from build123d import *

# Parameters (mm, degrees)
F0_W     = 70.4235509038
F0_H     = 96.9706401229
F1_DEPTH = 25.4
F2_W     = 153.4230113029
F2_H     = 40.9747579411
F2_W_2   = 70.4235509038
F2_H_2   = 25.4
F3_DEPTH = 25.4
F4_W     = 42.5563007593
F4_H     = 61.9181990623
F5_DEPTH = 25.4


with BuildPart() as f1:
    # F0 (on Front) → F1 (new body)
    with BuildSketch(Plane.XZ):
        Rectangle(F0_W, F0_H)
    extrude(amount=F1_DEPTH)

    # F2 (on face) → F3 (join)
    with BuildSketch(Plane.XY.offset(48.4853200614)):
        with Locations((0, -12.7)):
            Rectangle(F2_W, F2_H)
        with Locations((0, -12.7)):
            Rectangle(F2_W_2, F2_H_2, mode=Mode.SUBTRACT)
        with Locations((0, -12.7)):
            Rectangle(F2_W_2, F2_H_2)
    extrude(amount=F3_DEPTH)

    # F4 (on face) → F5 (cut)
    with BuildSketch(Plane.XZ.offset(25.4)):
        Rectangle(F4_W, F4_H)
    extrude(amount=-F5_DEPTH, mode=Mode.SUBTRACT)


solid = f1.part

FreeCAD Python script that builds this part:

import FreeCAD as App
import Part
import Sketcher

V = App.Vector
Q = App.Units.Quantity

doc = App.newDocument("Part")
body = doc.addObject("PartDesign::Body", "Body")

# Sketch on XZ plane
sketch1 = body.newObject("Sketcher::SketchObject", "Sketch")
sketch1.AttachmentSupport = (doc.getObject("XZ_Plane"), [""])
sketch1.MapMode = "FlatFace"
sketch1.addGeometry([
    Part.LineSegment(V(-35, 48, 0), V(-35, -48, 0)),
    Part.LineSegment(V(-35, -48, 0), V(35, -48, 0)),
    Part.LineSegment(V(35, -48, 0), V(35, 48, 0)),
    Part.LineSegment(V(35, 48, 0), V(-35, 48, 0)),
], False)
sketch1.addConstraint([
    Sketcher.Constraint("Coincident", 0, 2, 1, 1),
    Sketcher.Constraint("Coincident", 1, 2, 2, 1),
    Sketcher.Constraint("Coincident", 2, 2, 3, 1),
    Sketcher.Constraint("Coincident", 3, 2, 0, 1),
    Sketcher.Constraint("Vertical", 0),
    Sketcher.Constraint("Horizontal", 1),
    Sketcher.Constraint("Vertical", 2),
    Sketcher.Constraint("Horizontal", 3),
    Sketcher.Constraint("Symmetric", 0, 2, 2, 2, -1, 1),
    Sketcher.Constraint("DistanceX", 1, 1, 1, 2, 70.423551),
    Sketcher.Constraint("DistanceY", 0, 2, 0, 1, 96.97064),
])
pad1 = body.newObject("PartDesign::Pad", "Pad")
pad1.Profile = sketch1
pad1.Length = Q("1 in")

# Sketch on XY plane
sketch2 = body.newObject("Sketcher::SketchObject", "Sketch001")
sketch2.AttachmentSupport = (doc.getObject("XY_Plane"), [""])
sketch2.MapMode = "FlatFace"
sketch2.AttachmentOffset = App.Placement(V(0, 0, 48.48532), App.Rotation())
sketch2.addGeometry([
    Part.LineSegment(V(-77, 8, 0), V(-77, -33, 0)),
    Part.LineSegment(V(-77, -33, 0), V(77, -33, 0)),
    Part.LineSegment(V(77, -33, 0), V(77, 8, 0)),
    Part.LineSegment(V(77, 8, 0), V(-77, 8, 0)),
], False)
sketch2.addConstraint([
    Sketcher.Constraint("Coincident", 0, 2, 1, 1),
    Sketcher.Constraint("Coincident", 1, 2, 2, 1),
    Sketcher.Constraint("Coincident", 2, 2, 3, 1),
    Sketcher.Constraint("Coincident", 3, 2, 0, 1),
    Sketcher.Constraint("Vertical", 0),
    Sketcher.Constraint("Horizontal", 1),
    Sketcher.Constraint("Vertical", 2),
    Sketcher.Constraint("Horizontal", 3),
    Sketcher.Constraint("DistanceX", 1, 1, 1, 2, 153.423011),
    Sketcher.Constraint("DistanceY", 0, 2, 0, 1, 40.974758),
    Sketcher.Constraint("DistanceY", 0, 2, -1, 1, 33.187379),
    Sketcher.Constraint("DistanceX", 0, 2, -1, 1, 76.711506),
])
pad2 = body.newObject("PartDesign::Pad", "Pad001")
pad2.Profile = sketch2
pad2.Length = Q("1 in")

# Sketch on XZ plane
sketch3 = body.newObject("Sketcher::SketchObject", "Sketch002")
sketch3.AttachmentSupport = (doc.getObject("XZ_Plane"), [""])
sketch3.MapMode = "FlatFace"
sketch3.AttachmentOffset = App.Placement(V(0, 0, 1 * 25.4), App.Rotation())
sketch3.addGeometry([
    Part.LineSegment(V(-21, 31, 0), V(-21, -31, 0)),
    Part.LineSegment(V(-21, -31, 0), V(21, -31, 0)),
    Part.LineSegment(V(21, -31, 0), V(21, 31, 0)),
    Part.LineSegment(V(21, 31, 0), V(-21, 31, 0)),
], False)
sketch3.addConstraint([
    Sketcher.Constraint("Coincident", 0, 2, 1, 1),
    Sketcher.Constraint("Coincident", 1, 2, 2, 1),
    Sketcher.Constraint("Coincident", 2, 2, 3, 1),
    Sketcher.Constraint("Coincident", 3, 2, 0, 1),
    Sketcher.Constraint("Vertical", 0),
    Sketcher.Constraint("Horizontal", 1),
    Sketcher.Constraint("Vertical", 2),
    Sketcher.Constraint("Horizontal", 3),
    Sketcher.Constraint("Symmetric", 0, 2, 2, 2, -1, 1),
    Sketcher.Constraint("DistanceX", 1, 1, 1, 2, 42.556301),
    Sketcher.Constraint("DistanceY", 0, 2, 0, 1, 61.918199),
])
pocket1 = body.newObject("PartDesign::Pocket", "Pocket")
pocket1.Profile = sketch3
pocket1.Length = Q("1 in")

doc.recompute()
